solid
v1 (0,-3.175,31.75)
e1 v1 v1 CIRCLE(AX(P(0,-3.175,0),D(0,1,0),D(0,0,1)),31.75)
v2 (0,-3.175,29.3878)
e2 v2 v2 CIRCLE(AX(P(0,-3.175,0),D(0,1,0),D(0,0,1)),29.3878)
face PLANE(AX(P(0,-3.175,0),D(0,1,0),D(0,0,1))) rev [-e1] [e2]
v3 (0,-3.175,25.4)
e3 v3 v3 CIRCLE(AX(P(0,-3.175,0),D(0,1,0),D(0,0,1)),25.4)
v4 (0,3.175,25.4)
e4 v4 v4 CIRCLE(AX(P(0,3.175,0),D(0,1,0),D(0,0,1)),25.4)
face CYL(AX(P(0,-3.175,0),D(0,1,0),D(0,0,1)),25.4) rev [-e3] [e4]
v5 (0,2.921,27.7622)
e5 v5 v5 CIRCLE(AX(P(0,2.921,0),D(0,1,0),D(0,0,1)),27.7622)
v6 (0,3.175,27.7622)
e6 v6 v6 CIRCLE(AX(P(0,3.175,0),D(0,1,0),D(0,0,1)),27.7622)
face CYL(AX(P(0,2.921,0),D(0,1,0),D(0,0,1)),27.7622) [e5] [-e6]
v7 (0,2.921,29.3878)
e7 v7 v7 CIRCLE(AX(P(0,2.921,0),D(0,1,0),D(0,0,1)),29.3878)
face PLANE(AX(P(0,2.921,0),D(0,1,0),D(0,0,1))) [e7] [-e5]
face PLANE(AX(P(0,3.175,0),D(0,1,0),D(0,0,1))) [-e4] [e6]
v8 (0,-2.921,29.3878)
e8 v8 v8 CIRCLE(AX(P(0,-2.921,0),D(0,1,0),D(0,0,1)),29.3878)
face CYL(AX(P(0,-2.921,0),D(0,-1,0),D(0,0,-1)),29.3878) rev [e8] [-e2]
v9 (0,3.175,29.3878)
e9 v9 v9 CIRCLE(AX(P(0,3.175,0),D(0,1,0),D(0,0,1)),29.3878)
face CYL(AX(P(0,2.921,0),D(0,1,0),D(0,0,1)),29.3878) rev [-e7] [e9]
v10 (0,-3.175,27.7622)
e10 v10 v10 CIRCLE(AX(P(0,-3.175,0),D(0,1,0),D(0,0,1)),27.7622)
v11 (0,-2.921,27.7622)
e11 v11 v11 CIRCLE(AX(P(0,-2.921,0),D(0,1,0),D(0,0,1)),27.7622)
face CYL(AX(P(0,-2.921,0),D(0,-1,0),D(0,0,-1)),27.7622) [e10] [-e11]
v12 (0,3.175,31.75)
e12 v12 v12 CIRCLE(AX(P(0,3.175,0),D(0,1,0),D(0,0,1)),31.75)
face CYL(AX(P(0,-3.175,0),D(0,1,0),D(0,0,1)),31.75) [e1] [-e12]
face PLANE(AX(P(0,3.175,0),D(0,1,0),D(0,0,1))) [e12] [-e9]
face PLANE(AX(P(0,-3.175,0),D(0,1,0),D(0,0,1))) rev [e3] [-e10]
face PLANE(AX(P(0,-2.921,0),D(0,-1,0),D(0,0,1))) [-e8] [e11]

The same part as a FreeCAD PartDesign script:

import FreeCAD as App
import Part
import Sketcher
Q = App.Units.Quantity

doc = App.newDocument("Part")
body = doc.addObject("PartDesign::Body", "Body")

sketch1 = body.newObject("Sketcher::SketchObject", "Sketch")
sketch1.AttachmentSupport = (doc.getObject("XZ_Plane"), [""])
sketch1.MapMode = "FlatFace"
sketch1.addGeometry(Part.Circle(App.Vector(0, 0, 0), App.Vector(0, 0, 1), 31.75), False)
sketch1.addGeometry(Part.Circle(App.Vector(0, 0, 0), App.Vector(0, 0, 1), 25.4), False)
sketch1.addConstraint(Sketcher.Constraint("Coincident", 0, 3, -1, 1))
sketch1.addConstraint(Sketcher.Constraint("Coincident", 1, 3, -1, 1))
sketch1.addConstraint(Sketcher.Constraint("Diameter", 1, Q("2 in")))
sketch1.addConstraint(Sketcher.Constraint("Diameter", 0, Q("2.5 in")))
pad1 = body.newObject("PartDesign::Pad", "Pad")
pad1.Profile = sketch1
pad1.Type = "TwoLengths"
pad1.Length = Q("0.125 in")
pad1.Length2 = Q("0.125 in")
pad1.Reversed = True

sketch2 = body.newObject("Sketcher::SketchObject", "Sketch001")
sketch2.AttachmentSupport = (doc.getObject("XZ_Plane"), [""])
sketch2.MapMode = "FlatFace"
sketch2.AttachmentOffset = App.Placement(App.Vector(0, 0, -0.125 * 25.4), App.Rotation())
sketch2.addGeometry(Part.Circle(App.Vector(0, 0, 0), App.Vector(0, 0, 1), 29.3878), False)
sketch2.addGeometry(Part.Circle(App.Vector(0, 0, 0), App.Vector(0, 0, 1), 27.7622), False)
sketch2.addConstraint(Sketcher.Constraint("Coincident", 0, 3, -1, 1))
sketch2.addConstraint(Sketcher.Constraint("Coincident", 1, 3, -1, 1))
sketch2.addConstraint(Sketcher.Constraint("Diameter", 0, Q("2.314 in")))
sketch2.addConstraint(Sketcher.Constraint("Diameter", 1, Q("2.186 in")))
pocket1 = body.newObject("PartDesign::Pocket", "Pocket")
pocket1.Profile = sketch2
pocket1.Length = Q("0.01 in")
pocket1.Reversed = True
doc.recompute()

mirrored = body.newObject("PartDesign::Mirrored", "Mirrored")
mirrored.Originals = [pocket1]
mirrored.MirrorPlane = (doc.getObject("XZ_Plane"), [""])
body.Tip = mirrored

doc.recompute()
